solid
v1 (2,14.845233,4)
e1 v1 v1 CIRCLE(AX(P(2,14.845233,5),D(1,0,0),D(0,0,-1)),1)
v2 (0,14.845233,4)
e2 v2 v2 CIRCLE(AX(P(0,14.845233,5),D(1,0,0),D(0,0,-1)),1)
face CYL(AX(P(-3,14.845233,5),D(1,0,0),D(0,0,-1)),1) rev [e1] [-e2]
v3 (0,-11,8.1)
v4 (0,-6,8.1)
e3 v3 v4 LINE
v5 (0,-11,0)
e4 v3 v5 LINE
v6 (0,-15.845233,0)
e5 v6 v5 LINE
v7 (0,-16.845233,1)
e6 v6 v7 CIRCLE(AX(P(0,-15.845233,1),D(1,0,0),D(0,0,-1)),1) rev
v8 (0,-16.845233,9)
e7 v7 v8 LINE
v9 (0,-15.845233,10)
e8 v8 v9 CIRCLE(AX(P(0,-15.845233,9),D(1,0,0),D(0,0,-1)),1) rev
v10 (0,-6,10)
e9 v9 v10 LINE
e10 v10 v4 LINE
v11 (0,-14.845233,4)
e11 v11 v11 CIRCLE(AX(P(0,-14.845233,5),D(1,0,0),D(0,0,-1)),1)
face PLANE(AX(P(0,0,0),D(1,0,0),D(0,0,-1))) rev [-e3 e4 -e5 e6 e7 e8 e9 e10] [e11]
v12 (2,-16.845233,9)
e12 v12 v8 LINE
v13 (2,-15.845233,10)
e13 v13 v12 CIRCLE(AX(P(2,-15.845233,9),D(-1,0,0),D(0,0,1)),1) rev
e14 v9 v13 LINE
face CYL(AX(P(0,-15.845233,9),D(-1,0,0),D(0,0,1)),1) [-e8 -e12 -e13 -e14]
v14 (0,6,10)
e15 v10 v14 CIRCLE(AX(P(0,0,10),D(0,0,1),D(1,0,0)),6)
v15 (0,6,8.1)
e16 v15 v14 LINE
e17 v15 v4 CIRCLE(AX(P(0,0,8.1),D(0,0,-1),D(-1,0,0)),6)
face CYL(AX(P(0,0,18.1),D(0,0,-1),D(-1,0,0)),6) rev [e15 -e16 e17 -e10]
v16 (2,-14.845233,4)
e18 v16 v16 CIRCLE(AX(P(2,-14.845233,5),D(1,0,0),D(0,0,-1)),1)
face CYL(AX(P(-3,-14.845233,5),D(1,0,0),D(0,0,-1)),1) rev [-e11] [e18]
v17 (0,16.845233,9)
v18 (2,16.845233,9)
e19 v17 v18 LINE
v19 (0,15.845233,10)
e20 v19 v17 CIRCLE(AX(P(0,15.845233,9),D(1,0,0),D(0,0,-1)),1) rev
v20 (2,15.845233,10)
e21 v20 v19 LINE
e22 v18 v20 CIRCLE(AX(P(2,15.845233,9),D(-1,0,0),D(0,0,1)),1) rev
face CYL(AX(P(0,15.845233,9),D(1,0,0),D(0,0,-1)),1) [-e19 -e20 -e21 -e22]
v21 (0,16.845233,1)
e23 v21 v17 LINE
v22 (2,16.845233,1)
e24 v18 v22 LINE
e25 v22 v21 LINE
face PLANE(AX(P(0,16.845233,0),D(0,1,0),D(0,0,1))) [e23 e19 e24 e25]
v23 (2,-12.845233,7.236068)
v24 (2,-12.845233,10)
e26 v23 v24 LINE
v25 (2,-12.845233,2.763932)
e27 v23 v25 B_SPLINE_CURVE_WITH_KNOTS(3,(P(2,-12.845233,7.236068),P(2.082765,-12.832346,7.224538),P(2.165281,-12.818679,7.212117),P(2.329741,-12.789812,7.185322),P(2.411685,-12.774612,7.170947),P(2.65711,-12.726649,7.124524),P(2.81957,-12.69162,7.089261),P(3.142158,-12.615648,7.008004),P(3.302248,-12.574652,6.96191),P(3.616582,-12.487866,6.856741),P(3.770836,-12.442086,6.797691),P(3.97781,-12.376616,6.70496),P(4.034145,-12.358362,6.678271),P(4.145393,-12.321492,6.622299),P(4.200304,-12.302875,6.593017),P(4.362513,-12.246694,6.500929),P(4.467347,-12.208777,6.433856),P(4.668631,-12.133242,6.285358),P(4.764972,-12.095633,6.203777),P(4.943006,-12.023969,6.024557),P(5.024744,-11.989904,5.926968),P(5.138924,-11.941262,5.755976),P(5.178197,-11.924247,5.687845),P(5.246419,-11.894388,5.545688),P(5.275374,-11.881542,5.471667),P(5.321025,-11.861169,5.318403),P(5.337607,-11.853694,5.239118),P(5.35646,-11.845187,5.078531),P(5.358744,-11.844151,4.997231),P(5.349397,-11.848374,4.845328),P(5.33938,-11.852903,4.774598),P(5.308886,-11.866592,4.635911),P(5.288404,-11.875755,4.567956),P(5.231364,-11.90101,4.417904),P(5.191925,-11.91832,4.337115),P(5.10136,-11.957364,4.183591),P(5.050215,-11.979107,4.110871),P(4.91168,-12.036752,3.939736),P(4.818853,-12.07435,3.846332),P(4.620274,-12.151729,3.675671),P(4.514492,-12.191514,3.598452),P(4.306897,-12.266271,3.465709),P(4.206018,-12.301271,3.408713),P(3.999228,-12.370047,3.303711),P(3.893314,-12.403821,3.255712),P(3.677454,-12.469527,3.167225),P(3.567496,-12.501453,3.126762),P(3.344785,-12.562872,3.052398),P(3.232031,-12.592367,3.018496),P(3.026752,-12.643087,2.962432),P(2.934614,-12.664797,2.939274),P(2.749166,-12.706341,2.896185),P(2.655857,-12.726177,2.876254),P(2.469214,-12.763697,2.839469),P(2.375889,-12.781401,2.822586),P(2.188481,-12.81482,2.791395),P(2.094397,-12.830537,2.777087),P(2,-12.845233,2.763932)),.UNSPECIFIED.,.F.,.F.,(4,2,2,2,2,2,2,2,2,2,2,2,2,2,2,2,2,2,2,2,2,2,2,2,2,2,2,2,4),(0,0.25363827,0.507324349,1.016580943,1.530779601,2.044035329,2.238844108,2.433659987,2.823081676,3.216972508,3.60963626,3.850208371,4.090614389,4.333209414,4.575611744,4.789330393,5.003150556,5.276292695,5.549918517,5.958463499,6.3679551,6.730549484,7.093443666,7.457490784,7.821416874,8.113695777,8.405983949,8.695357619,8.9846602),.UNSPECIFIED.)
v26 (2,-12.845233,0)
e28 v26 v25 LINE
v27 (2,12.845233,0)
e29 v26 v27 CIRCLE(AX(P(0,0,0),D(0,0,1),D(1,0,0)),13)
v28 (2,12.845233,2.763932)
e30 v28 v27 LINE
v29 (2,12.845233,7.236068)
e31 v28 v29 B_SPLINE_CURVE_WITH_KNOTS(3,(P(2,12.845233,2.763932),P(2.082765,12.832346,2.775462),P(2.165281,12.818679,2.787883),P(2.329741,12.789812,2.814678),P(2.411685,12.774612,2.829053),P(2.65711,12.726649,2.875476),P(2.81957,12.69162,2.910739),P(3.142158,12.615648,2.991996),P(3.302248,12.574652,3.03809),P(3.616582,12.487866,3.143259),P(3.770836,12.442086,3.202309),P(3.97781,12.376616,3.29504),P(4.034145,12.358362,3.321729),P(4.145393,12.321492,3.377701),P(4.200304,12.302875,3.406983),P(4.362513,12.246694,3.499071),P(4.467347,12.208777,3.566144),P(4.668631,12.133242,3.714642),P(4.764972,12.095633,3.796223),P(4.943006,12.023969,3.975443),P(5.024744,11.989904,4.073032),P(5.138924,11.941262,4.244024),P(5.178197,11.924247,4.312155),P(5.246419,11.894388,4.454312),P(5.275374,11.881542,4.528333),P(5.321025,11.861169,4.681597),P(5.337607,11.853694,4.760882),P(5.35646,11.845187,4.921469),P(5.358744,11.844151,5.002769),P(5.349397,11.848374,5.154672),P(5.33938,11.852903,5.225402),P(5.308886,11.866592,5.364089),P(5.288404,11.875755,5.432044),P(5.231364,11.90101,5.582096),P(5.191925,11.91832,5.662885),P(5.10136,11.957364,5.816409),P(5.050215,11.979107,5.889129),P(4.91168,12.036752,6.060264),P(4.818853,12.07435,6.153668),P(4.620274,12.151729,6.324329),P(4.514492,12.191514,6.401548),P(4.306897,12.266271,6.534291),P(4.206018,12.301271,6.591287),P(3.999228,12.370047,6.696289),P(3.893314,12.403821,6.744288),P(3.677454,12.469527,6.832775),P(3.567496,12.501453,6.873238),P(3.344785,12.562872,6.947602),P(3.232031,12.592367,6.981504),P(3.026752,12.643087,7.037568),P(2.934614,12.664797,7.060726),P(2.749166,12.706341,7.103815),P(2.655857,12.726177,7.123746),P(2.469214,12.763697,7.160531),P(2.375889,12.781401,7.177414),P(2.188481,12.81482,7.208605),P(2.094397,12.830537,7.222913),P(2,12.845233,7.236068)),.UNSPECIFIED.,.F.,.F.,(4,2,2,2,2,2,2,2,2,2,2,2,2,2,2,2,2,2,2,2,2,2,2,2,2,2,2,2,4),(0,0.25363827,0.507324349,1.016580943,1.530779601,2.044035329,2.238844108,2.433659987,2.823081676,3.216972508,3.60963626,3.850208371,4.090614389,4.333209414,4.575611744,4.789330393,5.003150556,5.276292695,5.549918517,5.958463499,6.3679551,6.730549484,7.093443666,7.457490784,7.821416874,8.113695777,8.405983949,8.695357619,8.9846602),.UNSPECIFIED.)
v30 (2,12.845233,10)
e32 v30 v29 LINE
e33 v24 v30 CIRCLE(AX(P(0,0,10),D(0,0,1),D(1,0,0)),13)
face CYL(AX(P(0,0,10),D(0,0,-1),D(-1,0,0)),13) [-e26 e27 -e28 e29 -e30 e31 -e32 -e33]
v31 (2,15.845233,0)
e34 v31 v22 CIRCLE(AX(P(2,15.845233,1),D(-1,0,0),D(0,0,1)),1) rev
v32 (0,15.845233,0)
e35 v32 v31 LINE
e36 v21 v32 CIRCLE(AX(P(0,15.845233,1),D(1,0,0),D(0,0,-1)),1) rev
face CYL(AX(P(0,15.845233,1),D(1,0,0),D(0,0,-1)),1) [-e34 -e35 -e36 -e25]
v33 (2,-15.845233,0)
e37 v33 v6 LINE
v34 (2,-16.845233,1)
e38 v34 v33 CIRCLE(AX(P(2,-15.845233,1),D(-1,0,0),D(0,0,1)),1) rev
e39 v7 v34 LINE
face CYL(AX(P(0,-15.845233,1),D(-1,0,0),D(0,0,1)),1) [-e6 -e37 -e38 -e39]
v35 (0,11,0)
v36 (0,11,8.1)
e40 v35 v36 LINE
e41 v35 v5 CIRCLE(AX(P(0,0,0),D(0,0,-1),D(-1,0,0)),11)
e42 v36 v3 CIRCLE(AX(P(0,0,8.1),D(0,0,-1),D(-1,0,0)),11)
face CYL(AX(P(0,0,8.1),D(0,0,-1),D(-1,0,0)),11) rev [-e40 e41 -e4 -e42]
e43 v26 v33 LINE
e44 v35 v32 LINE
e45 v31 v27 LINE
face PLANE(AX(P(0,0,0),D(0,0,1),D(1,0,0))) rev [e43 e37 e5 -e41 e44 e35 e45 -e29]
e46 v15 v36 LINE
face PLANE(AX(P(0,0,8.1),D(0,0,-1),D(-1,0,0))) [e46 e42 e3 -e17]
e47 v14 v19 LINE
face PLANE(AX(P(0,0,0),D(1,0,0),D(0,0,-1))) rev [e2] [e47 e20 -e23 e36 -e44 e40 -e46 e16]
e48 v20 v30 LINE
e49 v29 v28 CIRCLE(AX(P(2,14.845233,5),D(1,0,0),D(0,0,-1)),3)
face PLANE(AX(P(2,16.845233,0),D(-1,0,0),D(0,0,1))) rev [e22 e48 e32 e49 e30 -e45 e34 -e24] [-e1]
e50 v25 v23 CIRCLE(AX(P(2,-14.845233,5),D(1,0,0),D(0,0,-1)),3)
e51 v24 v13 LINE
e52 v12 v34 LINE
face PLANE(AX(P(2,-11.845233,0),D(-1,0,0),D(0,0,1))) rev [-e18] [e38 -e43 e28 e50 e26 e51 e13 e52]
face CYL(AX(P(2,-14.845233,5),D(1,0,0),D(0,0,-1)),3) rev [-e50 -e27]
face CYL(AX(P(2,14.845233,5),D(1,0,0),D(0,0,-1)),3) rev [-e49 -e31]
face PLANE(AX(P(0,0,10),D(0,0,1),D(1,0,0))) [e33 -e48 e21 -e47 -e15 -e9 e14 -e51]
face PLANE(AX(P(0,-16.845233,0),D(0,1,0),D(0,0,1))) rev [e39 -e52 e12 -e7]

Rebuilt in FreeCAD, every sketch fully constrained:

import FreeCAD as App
import Part
import Sketcher


def edges_at(feature, points):
    """Names of the edges that pass closest to the given points."""
    edges = feature.Shape.Edges
    near = lambda p: min(range(len(edges)), key=lambda i: edges[i].distToShape(Part.Vertex(*p))[0])
    return sorted({f"Edge{near(p) + 1}" for p in points})


def add_polygon(sketch, points):
    """Adds a closed chain of lines whose ends are joined by coincident constraints."""
    first, n = sketch.GeometryCount, len(points)
    for a, b in zip(points, points[1:] + points[:1]):
        sketch.addGeometry(Part.LineSegment(App.Vector(*a, 0), App.Vector(*b, 0)), False)
    for i in range(n):
        sketch.addConstraint(Sketcher.Constraint("Coincident", first + i, 2, first + (i + 1) % n, 1))

doc = App.newDocument("Part")
body = doc.addObject("PartDesign::Body", "Body")

sketch1 = doc.addObject("Sketcher::SketchObject", "Sketch")
body.addObject(sketch1)
sketch1.AttachmentSupport = (doc.XY_Plane, [""])
sketch1.MapMode = "FlatFace"
sketch1.addGeometry(Part.Circle(App.Vector(0, 0, 0), App.Vector(0, 0, 1), 13), False)
sketch1.addConstraint([
    Sketcher.Constraint("Coincident", 0, 3, -1, 1),
    Sketcher.Constraint("Diameter", 0, 26.0),
])
pad1 = doc.addObject("PartDesign::Pad", "Pad")
body.addObject(pad1)
pad1.Profile = sketch1
pad1.Length = 10

sketch2 = doc.addObject("Sketcher::SketchObject", "Sketch001")
body.addObject(sketch2)
sketch2.AttachmentSupport = (doc.XY_Plane, [""])
sketch2.MapMode = "FlatFace"
sketch2.AttachmentOffset = App.Placement(App.Vector(0, 0, 10), App.Rotation())
add_polygon(sketch2, [(0, -13.84946), (0, 14.185204), (-21.443243, 14.185204), (-21.443243, -13.84946)])
sketch2.addConstraint([
    Sketcher.Constraint("Vertical", 0),
    Sketcher.Constraint("Horizontal", 1),
    Sketcher.Constraint("Vertical", 2),
    Sketcher.Constraint("Horizontal", 3),
    Sketcher.Constraint("PointOnObject", 0, 2, -2),
    Sketcher.Constraint("DistanceX", 1, 2, 1, 1, 21.443243),
    Sketcher.Constraint("DistanceY", 0, 1, 0, 2, 28.034664),
    Sketcher.Constraint("DistanceY", 2, 2, -1, 1, 13.84946),
])
pocket1 = doc.addObject("PartDesign::Pocket", "Pocket")
body.addObject(pocket1)
pocket1.Profile = sketch2
pocket1.Length = 10

sketch3 = doc.addObject("Sketcher::SketchObject", "Sketch002")
body.addObject(sketch3)
sketch3.AttachmentSupport = (doc.XY_Plane, [""])
sketch3.MapMode = "FlatFace"
sketch3.addGeometry(Part.Circle(App.Vector(0, 0, 0), App.Vector(0, 0, 1), 11), False)
sketch3.addConstraint([
    Sketcher.Constraint("Coincident", 0, 3, -1, 1),
    Sketcher.Constraint("Diameter", 0, 22.0),
])
pocket2 = doc.addObject("PartDesign::Pocket", "Pocket001")
body.addObject(pocket2)
pocket2.Profile = sketch3
pocket2.Length = 8.1
pocket2.Reversed = True

sketch4 = doc.addObject("Sketcher::SketchObject", "Sketch003")
body.addObject(sketch4)
sketch4.AttachmentSupport = (doc.XZ_Plane, [""])
sketch4.MapMode = "FlatFace"
sketch4.AttachmentOffset = App.Placement(App.Vector(0, 0, -11.845233), App.Rotation())
add_polygon(sketch4, [(0, 0), (0, 10), (2, 10), (2, 0)])
sketch4.addConstraint([
    Sketcher.Constraint("Vertical", 0),
    Sketcher.Constraint("Horizontal", 1),
    Sketcher.Constraint("Vertical", 2),
    Sketcher.Constraint("Horizontal", 3),
    Sketcher.Constraint("Coincident", 3, 2, -1, 1),
    Sketcher.Constraint("DistanceX", 1, 1, 1, 2, 2.0),
    Sketcher.Constraint("DistanceY", 0, 1, 0, 2, 10.0),
])
pad2 = doc.addObject("PartDesign::Pad", "Pad001")
body.addObject(pad2)
pad2.Profile = sketch4
pad2.Length = 5
pad2.Reversed = True

sketch5 = doc.addObject("Sketcher::SketchObject", "Sketch004")
body.addObject(sketch5)
sketch5.AttachmentSupport = (doc.XZ_Plane, [""])
sketch5.MapMode = "FlatFace"
sketch5.AttachmentOffset = App.Placement(App.Vector(0, 0, 16.845233), App.Rotation())
add_polygon(sketch5, [(0, 0), (0, 10), (2, 10), (2, 0)])
sketch5.addConstraint([
    Sketcher.Constraint("Vertical", 0),
    Sketcher.Constraint("Horizontal", 1),
    Sketcher.Constraint("Vertical", 2),
    Sketcher.Constraint("Horizontal", 3),
    Sketcher.Constraint("Coincident", 3, 2, -1, 1),
    Sketcher.Constraint("DistanceX", 1, 1, 1, 2, 2.0),
    Sketcher.Constraint("DistanceY", 0, 1, 0, 2, 10.0),
])
pad3 = doc.addObject("PartDesign::Pad", "Pad002")
body.addObject(pad3)
pad3.Profile = sketch5
pad3.Length = 5
pad3.Reversed = True

sketch6 = doc.addObject("Sketcher::SketchObject", "Sketch005")
body.addObject(sketch6)
sketch6.AttachmentSupport = (doc.YZ_Plane, [""])
sketch6.MapMode = "FlatFace"
sketch6.AttachmentOffset = App.Placement(App.Vector(0, 0, 2), App.Rotation())
sketch6.addGeometry(Part.Circle(App.Vector(14.845233, 5, 0), App.Vector(0, 0, 1), 1), False)
sketch6.addConstraint([
    Sketcher.Constraint("Diameter", 0, 2.0),
    Sketcher.Constraint("DistanceY", -1, 1, 0, 3, 5.0),
    Sketcher.Constraint("DistanceX", -1, 1, 0, 3, 14.845233),
])
pocket3 = doc.addObject("PartDesign::Pocket", "Pocket002")
body.addObject(pocket3)
pocket3.Profile = sketch6
pocket3.Length = 5

sketch7 = doc.addObject("Sketcher::SketchObject", "Sketch006")
body.addObject(sketch7)
sketch7.AttachmentSupport = (doc.YZ_Plane, [""])
sketch7.MapMode = "FlatFace"
sketch7.AttachmentOffset = App.Placement(App.Vector(0, 0, 2), App.Rotation())
sketch7.addGeometry(Part.Circle(App.Vector(-14.845233, 5, 0), App.Vector(0, 0, 1), 1), False)
sketch7.addConstraint([
    Sketcher.Constraint("Diameter", 0, 2.0),
    Sketcher.Constraint("DistanceY", -1, 1, 0, 3, 5.0),
    Sketcher.Constraint("DistanceX", 0, 3, -1, 1, 14.845233),
])
pocket4 = doc.addObject("PartDesign::Pocket", "Pocket003")
body.addObject(pocket4)
pocket4.Profile = sketch7
pocket4.Length = 5

sketch8 = doc.addObject("Sketcher::SketchObject", "Sketch007")
body.addObject(sketch8)
sketch8.AttachmentSupport = (doc.XY_Plane, [""])
sketch8.MapMode = "FlatFace"
sketch8.AttachmentOffset = App.Placement(App.Vector(0, 0, 8.1), App.Rotation())
sketch8.addGeometry(Part.Circle(App.Vector(0, 0, 0), App.Vector(0, 0, 1), 6), False)
sketch8.addConstraint([
    Sketcher.Constraint("Coincident", 0, 3, -1, 1),
    Sketcher.Constraint("Diameter", 0, 12.0),
])
pocket5 = doc.addObject("PartDesign::Pocket", "Pocket004")
body.addObject(pocket5)
pocket5.Profile = sketch8
pocket5.Length = 10
pocket5.Reversed = True

sketch9 = doc.addObject("Sketcher::SketchObject", "Sketch008")
body.addObject(sketch9)
sketch9.AttachmentSupport = (doc.YZ_Plane, [""])
sketch9.MapMode = "FlatFace"
sketch9.AttachmentOffset = App.Placement(App.Vector(0, 0, 10), App.Rotation())
sketch9.addGeometry(Part.Circle(App.Vector(14.845233, 5, 0), App.Vector(0, 0, 1), 3), False)
sketch9.addConstraint([
    Sketcher.Constraint("Diameter", 0, 6.0),
    Sketcher.Constraint("DistanceY", -1, 1, 0, 3, 5.0),
    Sketcher.Constraint("DistanceX", -1, 1, 0, 3, 14.845233),
])
pocket6 = doc.addObject("PartDesign::Pocket", "Pocket005")
body.addObject(pocket6)
pocket6.Profile = sketch9
pocket6.Length = 8

sketch10 = doc.addObject("Sketcher::SketchObject", "Sketch009")
body.addObject(sketch10)
sketch10.AttachmentSupport = (doc.YZ_Plane, [""])
sketch10.MapMode = "FlatFace"
sketch10.AttachmentOffset = App.Placement(App.Vector(0, 0, 10), App.Rotation())
sketch10.addGeometry(Part.Circle(App.Vector(-14.845233, 5, 0), App.Vector(0, 0, 1), 3), False)
sketch10.addConstraint([
    Sketcher.Constraint("Diameter", 0, 6.0),
    Sketcher.Constraint("DistanceY", -1, 1, 0, 3, 5.0),
    Sketcher.Constraint("DistanceX", 0, 3, -1, 1, 14.845233),
])
pocket7 = doc.addObject("PartDesign::Pocket", "Pocket006")
body.addObject(pocket7)
pocket7.Profile = sketch10
pocket7.Length = 8
doc.recompute()

fillet = doc.addObject("PartDesign::Fillet", "Fillet")
body.addObject(fillet)
fillet.Base = (pocket7, edges_at(pocket7, [(1, -16.845, 0)]))
fillet.Radius = 1
doc.recompute()

fillet2 = doc.addObject("PartDesign::Fillet", "Fillet001")
body.addObject(fillet2)
fillet2.Base = (fillet, edges_at(fillet, [(1, 16.845, 0)]))
fillet2.Radius = 1
doc.recompute()

fillet3 = doc.addObject("PartDesign::Fillet", "Fillet002")
body.addObject(fillet3)
fillet3.Base = (fillet2, edges_at(fillet2, [(1, 16.845, 10)]))
fillet3.Radius = 1
doc.recompute()

fillet4 = doc.addObject("PartDesign::Fillet", "Fillet003")
body.addObject(fillet4)
fillet4.Base = (fillet3, edges_at(fillet3, [(1, -16.845, 10)]))
fillet4.Radius = 1

doc.recompute()
